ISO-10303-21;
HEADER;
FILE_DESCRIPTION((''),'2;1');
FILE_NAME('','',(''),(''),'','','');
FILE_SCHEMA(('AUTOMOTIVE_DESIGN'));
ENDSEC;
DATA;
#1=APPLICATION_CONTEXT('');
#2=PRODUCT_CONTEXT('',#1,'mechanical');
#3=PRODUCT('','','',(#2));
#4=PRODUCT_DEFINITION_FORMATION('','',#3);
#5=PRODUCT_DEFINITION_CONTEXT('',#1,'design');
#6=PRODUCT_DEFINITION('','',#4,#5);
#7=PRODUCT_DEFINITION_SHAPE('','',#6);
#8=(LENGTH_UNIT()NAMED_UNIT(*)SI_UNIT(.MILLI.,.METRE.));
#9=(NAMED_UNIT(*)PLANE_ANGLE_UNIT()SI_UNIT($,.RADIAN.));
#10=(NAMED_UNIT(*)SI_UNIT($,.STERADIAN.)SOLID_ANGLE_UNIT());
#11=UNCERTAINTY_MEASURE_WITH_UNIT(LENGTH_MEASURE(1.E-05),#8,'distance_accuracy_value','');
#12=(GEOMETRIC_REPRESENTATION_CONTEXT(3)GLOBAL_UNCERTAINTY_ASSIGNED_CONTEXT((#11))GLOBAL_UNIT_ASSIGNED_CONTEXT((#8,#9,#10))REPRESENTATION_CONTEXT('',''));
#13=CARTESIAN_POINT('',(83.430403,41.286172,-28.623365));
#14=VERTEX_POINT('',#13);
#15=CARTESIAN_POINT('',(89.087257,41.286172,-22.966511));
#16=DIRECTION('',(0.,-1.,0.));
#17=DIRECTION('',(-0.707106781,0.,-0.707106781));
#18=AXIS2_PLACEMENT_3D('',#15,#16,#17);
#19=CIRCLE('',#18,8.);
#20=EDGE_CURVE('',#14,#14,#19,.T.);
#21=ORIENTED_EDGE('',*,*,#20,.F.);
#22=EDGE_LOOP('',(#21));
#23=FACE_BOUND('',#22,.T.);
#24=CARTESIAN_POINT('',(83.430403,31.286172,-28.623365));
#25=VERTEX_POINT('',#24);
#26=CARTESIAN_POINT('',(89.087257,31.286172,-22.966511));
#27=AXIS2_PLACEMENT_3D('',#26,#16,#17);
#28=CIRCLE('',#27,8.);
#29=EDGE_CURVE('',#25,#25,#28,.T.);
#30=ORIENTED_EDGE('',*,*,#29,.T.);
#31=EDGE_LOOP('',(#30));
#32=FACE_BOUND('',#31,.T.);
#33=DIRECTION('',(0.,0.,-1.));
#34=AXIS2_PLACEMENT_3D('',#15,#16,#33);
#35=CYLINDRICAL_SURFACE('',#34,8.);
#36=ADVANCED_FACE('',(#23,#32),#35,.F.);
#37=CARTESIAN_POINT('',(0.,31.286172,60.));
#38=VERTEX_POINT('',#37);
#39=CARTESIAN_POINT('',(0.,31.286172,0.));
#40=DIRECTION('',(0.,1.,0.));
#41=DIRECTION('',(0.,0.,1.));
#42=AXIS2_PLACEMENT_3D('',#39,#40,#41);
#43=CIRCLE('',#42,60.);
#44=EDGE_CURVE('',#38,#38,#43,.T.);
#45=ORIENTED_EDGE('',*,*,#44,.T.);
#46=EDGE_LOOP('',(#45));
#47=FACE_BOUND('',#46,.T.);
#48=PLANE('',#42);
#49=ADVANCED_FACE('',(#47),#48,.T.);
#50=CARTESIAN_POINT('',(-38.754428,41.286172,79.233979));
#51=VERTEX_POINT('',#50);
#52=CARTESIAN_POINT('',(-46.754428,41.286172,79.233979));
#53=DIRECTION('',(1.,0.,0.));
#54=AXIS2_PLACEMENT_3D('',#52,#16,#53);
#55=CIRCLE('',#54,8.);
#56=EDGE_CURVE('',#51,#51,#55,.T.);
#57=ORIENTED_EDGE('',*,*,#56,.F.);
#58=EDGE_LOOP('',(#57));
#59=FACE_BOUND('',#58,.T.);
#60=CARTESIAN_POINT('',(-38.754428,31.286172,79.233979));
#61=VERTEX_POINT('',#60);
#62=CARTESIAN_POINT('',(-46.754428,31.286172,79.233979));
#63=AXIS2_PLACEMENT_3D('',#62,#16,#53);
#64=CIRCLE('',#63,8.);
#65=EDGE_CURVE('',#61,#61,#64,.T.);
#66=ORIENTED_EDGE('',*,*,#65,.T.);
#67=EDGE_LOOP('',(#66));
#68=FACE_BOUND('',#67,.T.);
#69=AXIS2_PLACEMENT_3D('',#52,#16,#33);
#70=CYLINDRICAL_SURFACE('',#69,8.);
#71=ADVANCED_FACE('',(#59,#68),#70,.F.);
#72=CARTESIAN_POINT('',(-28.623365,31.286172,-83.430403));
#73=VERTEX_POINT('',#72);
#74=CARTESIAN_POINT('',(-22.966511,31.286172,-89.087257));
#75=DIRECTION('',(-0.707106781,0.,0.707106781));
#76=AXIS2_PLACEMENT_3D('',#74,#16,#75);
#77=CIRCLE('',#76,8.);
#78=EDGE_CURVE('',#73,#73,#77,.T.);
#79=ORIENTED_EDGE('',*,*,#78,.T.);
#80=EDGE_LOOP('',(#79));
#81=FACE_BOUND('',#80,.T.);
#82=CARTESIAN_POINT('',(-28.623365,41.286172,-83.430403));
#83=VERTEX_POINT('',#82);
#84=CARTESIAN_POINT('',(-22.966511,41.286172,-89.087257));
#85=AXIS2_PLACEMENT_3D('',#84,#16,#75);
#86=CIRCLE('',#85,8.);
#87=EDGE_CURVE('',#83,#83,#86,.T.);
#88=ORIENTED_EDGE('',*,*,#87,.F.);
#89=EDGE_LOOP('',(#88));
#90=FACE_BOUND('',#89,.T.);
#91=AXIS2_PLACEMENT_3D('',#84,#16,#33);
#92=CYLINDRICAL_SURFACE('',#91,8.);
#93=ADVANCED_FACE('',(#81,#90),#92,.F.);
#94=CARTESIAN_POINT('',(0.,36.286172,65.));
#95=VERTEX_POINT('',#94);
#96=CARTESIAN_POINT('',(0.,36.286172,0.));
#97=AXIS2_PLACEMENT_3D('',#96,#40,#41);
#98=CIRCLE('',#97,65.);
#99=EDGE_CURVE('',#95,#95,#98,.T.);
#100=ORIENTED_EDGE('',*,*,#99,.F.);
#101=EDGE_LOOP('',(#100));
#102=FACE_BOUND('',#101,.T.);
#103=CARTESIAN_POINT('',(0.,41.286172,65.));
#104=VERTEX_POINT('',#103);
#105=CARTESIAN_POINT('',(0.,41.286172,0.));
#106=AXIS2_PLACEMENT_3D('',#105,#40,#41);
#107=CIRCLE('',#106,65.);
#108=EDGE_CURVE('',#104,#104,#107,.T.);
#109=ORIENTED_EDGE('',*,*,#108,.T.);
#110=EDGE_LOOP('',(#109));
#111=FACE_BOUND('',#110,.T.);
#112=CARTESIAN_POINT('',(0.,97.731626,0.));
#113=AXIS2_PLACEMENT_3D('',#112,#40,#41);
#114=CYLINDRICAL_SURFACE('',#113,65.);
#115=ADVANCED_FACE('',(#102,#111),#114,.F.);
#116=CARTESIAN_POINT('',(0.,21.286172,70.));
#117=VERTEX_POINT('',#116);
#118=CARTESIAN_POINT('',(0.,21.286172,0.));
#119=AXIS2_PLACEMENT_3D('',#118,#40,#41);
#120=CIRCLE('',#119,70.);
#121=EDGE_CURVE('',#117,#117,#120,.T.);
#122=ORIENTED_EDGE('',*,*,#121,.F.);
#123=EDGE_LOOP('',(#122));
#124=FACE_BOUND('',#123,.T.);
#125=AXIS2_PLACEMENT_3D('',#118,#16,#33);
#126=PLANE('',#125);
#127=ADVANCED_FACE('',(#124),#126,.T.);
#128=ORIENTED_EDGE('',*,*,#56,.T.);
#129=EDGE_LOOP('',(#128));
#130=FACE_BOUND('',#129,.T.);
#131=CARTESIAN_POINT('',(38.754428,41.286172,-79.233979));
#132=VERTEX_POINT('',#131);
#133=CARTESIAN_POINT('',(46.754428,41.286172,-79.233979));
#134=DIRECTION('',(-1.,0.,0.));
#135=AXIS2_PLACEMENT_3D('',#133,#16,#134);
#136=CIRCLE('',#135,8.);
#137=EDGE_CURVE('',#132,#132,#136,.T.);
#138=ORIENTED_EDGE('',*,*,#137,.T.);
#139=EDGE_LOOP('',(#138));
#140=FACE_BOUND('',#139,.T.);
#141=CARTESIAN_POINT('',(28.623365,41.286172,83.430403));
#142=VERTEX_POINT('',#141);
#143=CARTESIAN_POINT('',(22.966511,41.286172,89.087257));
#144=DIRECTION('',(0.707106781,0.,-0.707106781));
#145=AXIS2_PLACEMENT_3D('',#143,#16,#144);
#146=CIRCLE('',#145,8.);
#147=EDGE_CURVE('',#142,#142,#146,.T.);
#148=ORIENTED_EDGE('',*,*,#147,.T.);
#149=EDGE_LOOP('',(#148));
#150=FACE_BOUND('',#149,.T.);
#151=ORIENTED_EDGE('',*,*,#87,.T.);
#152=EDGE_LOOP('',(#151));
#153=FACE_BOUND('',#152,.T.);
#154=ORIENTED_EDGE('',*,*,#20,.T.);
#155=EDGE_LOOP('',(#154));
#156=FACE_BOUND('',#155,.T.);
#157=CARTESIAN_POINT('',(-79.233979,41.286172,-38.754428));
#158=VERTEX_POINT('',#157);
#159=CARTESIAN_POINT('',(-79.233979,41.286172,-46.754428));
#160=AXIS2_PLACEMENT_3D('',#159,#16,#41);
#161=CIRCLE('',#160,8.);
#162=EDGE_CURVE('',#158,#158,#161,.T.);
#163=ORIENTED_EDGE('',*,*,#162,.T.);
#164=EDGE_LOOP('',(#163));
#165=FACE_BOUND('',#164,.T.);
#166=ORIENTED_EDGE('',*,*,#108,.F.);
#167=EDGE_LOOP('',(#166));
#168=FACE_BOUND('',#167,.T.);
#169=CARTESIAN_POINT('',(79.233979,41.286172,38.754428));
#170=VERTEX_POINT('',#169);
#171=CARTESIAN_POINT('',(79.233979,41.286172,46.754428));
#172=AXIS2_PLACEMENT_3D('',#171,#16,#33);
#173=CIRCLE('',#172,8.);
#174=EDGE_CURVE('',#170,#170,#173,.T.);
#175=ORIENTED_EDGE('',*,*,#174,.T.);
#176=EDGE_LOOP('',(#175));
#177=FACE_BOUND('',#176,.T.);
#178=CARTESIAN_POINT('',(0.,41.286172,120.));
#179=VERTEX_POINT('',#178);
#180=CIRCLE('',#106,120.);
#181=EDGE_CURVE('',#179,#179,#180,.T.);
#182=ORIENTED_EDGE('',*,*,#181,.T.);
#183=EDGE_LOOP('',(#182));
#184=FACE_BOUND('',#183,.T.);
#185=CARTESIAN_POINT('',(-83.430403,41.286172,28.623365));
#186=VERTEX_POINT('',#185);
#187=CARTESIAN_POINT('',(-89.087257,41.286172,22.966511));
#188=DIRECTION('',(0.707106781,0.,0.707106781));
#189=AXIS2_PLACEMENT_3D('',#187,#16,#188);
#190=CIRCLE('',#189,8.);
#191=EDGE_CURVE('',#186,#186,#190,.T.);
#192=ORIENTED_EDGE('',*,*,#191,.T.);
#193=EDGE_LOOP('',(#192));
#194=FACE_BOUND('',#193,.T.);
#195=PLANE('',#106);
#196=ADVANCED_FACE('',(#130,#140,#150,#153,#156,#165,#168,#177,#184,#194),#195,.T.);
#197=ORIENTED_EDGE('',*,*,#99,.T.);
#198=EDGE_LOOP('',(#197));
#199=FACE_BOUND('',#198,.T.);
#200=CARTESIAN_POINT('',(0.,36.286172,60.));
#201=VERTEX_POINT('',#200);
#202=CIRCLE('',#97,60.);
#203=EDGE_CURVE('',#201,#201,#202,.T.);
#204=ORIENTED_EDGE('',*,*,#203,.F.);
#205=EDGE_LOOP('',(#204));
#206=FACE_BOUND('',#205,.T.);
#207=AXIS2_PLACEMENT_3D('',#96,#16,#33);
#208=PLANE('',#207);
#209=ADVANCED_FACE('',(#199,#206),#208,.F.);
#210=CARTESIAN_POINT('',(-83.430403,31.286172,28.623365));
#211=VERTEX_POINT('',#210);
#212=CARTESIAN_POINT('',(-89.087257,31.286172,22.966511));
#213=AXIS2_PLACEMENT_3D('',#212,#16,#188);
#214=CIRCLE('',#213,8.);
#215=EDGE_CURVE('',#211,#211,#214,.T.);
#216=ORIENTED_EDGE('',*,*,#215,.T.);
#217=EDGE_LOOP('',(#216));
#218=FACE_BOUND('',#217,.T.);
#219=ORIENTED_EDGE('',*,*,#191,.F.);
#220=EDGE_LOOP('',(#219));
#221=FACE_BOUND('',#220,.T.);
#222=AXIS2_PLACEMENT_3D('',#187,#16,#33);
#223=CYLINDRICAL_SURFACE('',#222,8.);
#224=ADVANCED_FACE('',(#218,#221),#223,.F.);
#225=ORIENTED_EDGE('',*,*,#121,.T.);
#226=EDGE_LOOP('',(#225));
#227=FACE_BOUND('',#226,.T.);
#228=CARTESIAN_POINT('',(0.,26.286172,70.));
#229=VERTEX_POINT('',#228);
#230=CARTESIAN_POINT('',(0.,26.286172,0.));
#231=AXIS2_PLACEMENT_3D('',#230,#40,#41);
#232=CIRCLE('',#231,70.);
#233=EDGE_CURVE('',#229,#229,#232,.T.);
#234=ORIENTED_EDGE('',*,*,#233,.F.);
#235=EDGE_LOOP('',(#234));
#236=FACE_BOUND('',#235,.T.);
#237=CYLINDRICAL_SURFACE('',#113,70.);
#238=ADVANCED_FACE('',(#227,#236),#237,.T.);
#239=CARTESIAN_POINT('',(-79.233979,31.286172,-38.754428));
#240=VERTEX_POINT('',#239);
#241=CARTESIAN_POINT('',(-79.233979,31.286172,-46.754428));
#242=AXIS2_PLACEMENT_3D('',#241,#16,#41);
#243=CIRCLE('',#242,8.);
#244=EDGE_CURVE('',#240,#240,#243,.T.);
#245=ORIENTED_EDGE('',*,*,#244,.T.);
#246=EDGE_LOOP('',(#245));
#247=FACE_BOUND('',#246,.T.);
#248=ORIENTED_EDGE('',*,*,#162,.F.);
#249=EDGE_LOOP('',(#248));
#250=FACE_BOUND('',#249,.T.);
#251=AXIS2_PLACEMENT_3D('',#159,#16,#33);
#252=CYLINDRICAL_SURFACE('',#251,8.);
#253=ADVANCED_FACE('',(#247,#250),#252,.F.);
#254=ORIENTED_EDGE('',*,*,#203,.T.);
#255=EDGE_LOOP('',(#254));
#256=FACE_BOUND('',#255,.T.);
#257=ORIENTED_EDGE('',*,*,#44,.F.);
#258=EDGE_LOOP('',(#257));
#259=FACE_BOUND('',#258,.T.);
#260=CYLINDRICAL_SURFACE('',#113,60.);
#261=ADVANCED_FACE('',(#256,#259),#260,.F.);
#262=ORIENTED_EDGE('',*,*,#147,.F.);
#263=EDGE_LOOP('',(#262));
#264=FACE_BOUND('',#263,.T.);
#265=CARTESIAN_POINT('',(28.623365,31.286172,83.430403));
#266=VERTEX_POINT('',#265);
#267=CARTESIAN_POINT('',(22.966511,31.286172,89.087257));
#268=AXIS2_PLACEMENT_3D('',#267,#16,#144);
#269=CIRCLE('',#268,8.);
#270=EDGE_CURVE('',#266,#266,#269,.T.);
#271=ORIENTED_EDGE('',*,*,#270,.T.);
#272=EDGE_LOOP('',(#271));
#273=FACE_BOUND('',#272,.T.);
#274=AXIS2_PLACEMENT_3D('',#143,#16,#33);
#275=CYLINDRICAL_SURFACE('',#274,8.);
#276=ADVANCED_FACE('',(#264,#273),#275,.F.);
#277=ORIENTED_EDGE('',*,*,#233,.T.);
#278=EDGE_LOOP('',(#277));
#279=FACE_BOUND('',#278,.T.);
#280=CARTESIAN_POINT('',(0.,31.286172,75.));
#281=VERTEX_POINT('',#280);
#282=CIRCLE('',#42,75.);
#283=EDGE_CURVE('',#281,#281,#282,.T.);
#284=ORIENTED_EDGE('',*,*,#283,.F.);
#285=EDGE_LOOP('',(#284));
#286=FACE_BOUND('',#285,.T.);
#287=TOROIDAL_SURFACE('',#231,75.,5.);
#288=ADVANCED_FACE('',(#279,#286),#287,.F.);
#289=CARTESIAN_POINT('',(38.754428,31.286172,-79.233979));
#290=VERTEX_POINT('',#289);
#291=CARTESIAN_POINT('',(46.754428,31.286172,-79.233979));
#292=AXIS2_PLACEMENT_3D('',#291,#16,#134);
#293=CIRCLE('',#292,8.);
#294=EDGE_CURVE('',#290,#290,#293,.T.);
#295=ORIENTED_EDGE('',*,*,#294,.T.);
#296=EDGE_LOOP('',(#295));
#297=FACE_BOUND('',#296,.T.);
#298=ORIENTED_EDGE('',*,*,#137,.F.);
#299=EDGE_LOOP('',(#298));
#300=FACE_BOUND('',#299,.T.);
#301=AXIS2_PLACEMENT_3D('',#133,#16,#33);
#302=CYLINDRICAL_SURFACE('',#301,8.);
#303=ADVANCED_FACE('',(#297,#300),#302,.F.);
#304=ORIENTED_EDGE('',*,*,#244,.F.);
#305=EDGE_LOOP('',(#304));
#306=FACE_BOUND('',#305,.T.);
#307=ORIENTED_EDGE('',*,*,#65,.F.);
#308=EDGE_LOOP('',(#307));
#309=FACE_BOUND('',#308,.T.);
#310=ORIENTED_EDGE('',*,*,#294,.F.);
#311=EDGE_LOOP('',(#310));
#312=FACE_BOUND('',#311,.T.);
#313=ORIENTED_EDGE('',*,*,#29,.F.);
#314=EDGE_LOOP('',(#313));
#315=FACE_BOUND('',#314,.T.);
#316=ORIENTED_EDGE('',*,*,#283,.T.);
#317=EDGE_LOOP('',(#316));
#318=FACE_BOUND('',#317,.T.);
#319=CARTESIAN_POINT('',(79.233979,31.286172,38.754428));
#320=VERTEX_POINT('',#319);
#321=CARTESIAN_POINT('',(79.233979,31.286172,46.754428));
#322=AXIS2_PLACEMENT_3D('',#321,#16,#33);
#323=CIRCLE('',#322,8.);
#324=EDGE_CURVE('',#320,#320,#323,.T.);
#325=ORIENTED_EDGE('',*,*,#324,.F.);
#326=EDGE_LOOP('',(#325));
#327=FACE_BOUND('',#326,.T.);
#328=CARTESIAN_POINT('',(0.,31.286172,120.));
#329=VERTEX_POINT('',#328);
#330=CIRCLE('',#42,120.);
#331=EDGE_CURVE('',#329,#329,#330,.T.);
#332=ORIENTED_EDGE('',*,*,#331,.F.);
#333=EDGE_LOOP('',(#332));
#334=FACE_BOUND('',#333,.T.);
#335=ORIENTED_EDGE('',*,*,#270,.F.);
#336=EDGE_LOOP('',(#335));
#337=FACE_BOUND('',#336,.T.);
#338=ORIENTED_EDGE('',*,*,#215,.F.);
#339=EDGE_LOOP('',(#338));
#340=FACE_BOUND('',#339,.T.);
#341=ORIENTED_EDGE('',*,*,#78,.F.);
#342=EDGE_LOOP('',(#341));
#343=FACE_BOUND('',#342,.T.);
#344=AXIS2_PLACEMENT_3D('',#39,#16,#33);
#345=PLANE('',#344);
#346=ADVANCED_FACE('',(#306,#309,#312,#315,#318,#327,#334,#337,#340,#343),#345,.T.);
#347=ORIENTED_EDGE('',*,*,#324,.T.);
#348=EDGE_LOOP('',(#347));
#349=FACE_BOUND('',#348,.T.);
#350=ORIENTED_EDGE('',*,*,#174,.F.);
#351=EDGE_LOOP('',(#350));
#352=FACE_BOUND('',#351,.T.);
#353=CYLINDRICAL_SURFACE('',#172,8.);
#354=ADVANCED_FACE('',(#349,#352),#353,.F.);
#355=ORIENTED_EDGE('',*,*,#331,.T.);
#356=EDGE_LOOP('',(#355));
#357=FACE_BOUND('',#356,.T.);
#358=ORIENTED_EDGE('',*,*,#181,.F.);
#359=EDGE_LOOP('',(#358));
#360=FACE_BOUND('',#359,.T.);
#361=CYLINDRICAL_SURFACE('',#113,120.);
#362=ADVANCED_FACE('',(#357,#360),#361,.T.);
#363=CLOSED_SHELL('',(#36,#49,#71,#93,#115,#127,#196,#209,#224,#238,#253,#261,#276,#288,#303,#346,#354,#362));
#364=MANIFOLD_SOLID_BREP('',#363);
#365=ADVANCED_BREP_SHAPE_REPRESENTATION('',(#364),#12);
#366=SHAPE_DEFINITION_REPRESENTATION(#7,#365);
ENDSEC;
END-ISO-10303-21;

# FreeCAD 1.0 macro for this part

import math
import FreeCAD as App
import Part
import Sketcher
Q = App.Units.Quantity

doc = App.newDocument("Part")
params = doc.addObject("Spreadsheet::Sheet", "Params")
for row, (alias, value) in enumerate([
    ("sketch1_radius", "5 mm"),
    ("sketch1_width", "45 mm"),
    ("sketch1_width2", "55 mm"),
    ("sketch1_width3", "60 mm"),
    ("revolution_angle", "360 deg"),
    ("sketch2_diameter", "16 mm"),
], start=1):
    params.set(f"A{row}", alias)
    params.set(f"B{row}", "=" + value)
    params.setAlias(f"B{row}", alias)

body = doc.addObject("PartDesign::Body", "Body")

# Sketch on XY plane
sketch1 = body.newObject("Sketcher::SketchObject", "Sketch")
sketch1.AttachmentSupport = (doc.getObject("XY_Plane"), [""])
sketch1.MapMode = "FlatFace"
sketch1.addGeometry([
    Part.ArcOfCircle(Part.Circle(App.Vector(75, 26, 0), App.Vector(0, 0, 1), 5), math.radians(90), math.radians(180)),  # 0
    Part.LineSegment(App.Vector(75, 31, 0), App.Vector(120, 31, 0)),  # 1
    Part.LineSegment(App.Vector(120, 31, 0), App.Vector(120, 41, 0)),  # 2
    Part.LineSegment(App.Vector(120, 41, 0), App.Vector(65, 41, 0)),  # 3
    Part.LineSegment(App.Vector(65, 41, 0), App.Vector(65, 36, 0)),  # 4
    Part.LineSegment(App.Vector(65, 36, 0), App.Vector(60, 36, 0)),  # 5
    Part.LineSegment(App.Vector(60, 36, 0), App.Vector(60, 31, 0)),  # 6
    Part.LineSegment(App.Vector(60, 31, 0), App.Vector(0, 31, 0)),  # 7
    Part.LineSegment(App.Vector(0, 31, 0), App.Vector(0, 21, 0)),  # 8
    Part.LineSegment(App.Vector(0, 21, 0), App.Vector(70, 21, 0)),  # 9
    Part.LineSegment(App.Vector(70, 21, 0), App.Vector(70, 26, 0)),  # 10
], False)
sketch1.addConstraint([
    Sketcher.Constraint("Tangent", 0, 1, 1, 1),
    Sketcher.Constraint("Coincident", 1, 2, 2, 1),
    Sketcher.Constraint("Coincident", 2, 2, 3, 1),
    Sketcher.Constraint("Coincident", 3, 2, 4, 1),
    Sketcher.Constraint("Coincident", 4, 2, 5, 1),
    Sketcher.Constraint("Coincident", 5, 2, 6, 1),
    Sketcher.Constraint("Coincident", 6, 2, 7, 1),
    Sketcher.Constraint("Coincident", 7, 2, 8, 1),
    Sketcher.Constraint("Coincident", 8, 2, 9, 1),
    Sketcher.Constraint("Coincident", 9, 2, 10, 1),
    Sketcher.Constraint("Tangent", 10, 2, 0, 2),
    Sketcher.Constraint("Horizontal", 1),
    Sketcher.Constraint("Vertical", 2),
    Sketcher.Constraint("Horizontal", 3),
    Sketcher.Constraint("Vertical", 4),
    Sketcher.Constraint("Horizontal", 5),
    Sketcher.Constraint("Vertical", 6),
    Sketcher.Constraint("Horizontal", 7),
    Sketcher.Constraint("Vertical", 8),
    Sketcher.Constraint("Horizontal", 9),
    Sketcher.Constraint("Vertical", 10),
    Sketcher.Constraint("PointOnObject", 7, 2, -2),
    Sketcher.Constraint("Horizontal", 1, 2, 6, 2),
    Sketcher.Constraint("Equal", 5, 4),
    Sketcher.Constraint("Equal", 4, 6),
    Sketcher.Constraint("Equal", 2, 8),
    Sketcher.Constraint("Equal", 6, 10),
    Sketcher.Constraint("Radius", 0, Q("5 mm")),
    Sketcher.Constraint("DistanceX", 1, 1, 1, 2, Q("45 mm")),
    Sketcher.Constraint("DistanceX", 3, 2, 3, 1, Q("55 mm")),
    Sketcher.Constraint("DistanceX", 7, 2, 7, 1, Q("60 mm")),
    Sketcher.Constraint("DistanceY", -1, 1, 0, 3, Q("26.286172 mm")),
])
sketch1.setExpression("Constraints[27]", "Params.sketch1_radius")
sketch1.setExpression("Constraints[28]", "Params.sketch1_width")
sketch1.setExpression("Constraints[29]", "Params.sketch1_width2")
sketch1.setExpression("Constraints[30]", "Params.sketch1_width3")
revolution = body.newObject("PartDesign::Revolution", "Revolution")
revolution.Profile = sketch1
revolution.ReferenceAxis = (sketch1, ["V_Axis"])
revolution.setExpression("Angle", "Params.revolution_angle")

# Sketch on XZ plane
sketch2 = body.newObject("Sketcher::SketchObject", "Sketch001")
sketch2.AttachmentSupport = (doc.getObject("XZ_Plane"), [""])
sketch2.MapMode = "FlatFace"
sketch2.AttachmentOffset = App.Placement(App.Vector(0, 0, -31.286172), App.Rotation())
sketch2.addGeometry(Part.Circle(App.Vector(79, 47, 0), App.Vector(0, 0, 1), 8), False)
sketch2.addConstraint([
    Sketcher.Constraint("Diameter", 0, Q("16 mm")),
    Sketcher.Constraint("DistanceX", -1, 1, 0, 3, Q("79.233979 mm")),
    Sketcher.Constraint("DistanceY", -1, 1, 0, 3, Q("46.754428 mm")),
])
sketch2.setExpression("Constraints[0]", "Params.sketch2_diameter")
pocket1 = body.newObject("PartDesign::Pocket", "Pocket")
pocket1.Profile = sketch2
pocket1.Type = "ThroughAll"
doc.recompute()

polarpattern = body.newObject("PartDesign::PolarPattern", "PolarPattern")
polarpattern.Originals = [pocket1]
polarpattern.Axis = (doc.getObject("Y_Axis"), [""])
polarpattern.Angle = 360
polarpattern.Occurrences = 8
body.Tip = polarpattern

doc.recompute()
